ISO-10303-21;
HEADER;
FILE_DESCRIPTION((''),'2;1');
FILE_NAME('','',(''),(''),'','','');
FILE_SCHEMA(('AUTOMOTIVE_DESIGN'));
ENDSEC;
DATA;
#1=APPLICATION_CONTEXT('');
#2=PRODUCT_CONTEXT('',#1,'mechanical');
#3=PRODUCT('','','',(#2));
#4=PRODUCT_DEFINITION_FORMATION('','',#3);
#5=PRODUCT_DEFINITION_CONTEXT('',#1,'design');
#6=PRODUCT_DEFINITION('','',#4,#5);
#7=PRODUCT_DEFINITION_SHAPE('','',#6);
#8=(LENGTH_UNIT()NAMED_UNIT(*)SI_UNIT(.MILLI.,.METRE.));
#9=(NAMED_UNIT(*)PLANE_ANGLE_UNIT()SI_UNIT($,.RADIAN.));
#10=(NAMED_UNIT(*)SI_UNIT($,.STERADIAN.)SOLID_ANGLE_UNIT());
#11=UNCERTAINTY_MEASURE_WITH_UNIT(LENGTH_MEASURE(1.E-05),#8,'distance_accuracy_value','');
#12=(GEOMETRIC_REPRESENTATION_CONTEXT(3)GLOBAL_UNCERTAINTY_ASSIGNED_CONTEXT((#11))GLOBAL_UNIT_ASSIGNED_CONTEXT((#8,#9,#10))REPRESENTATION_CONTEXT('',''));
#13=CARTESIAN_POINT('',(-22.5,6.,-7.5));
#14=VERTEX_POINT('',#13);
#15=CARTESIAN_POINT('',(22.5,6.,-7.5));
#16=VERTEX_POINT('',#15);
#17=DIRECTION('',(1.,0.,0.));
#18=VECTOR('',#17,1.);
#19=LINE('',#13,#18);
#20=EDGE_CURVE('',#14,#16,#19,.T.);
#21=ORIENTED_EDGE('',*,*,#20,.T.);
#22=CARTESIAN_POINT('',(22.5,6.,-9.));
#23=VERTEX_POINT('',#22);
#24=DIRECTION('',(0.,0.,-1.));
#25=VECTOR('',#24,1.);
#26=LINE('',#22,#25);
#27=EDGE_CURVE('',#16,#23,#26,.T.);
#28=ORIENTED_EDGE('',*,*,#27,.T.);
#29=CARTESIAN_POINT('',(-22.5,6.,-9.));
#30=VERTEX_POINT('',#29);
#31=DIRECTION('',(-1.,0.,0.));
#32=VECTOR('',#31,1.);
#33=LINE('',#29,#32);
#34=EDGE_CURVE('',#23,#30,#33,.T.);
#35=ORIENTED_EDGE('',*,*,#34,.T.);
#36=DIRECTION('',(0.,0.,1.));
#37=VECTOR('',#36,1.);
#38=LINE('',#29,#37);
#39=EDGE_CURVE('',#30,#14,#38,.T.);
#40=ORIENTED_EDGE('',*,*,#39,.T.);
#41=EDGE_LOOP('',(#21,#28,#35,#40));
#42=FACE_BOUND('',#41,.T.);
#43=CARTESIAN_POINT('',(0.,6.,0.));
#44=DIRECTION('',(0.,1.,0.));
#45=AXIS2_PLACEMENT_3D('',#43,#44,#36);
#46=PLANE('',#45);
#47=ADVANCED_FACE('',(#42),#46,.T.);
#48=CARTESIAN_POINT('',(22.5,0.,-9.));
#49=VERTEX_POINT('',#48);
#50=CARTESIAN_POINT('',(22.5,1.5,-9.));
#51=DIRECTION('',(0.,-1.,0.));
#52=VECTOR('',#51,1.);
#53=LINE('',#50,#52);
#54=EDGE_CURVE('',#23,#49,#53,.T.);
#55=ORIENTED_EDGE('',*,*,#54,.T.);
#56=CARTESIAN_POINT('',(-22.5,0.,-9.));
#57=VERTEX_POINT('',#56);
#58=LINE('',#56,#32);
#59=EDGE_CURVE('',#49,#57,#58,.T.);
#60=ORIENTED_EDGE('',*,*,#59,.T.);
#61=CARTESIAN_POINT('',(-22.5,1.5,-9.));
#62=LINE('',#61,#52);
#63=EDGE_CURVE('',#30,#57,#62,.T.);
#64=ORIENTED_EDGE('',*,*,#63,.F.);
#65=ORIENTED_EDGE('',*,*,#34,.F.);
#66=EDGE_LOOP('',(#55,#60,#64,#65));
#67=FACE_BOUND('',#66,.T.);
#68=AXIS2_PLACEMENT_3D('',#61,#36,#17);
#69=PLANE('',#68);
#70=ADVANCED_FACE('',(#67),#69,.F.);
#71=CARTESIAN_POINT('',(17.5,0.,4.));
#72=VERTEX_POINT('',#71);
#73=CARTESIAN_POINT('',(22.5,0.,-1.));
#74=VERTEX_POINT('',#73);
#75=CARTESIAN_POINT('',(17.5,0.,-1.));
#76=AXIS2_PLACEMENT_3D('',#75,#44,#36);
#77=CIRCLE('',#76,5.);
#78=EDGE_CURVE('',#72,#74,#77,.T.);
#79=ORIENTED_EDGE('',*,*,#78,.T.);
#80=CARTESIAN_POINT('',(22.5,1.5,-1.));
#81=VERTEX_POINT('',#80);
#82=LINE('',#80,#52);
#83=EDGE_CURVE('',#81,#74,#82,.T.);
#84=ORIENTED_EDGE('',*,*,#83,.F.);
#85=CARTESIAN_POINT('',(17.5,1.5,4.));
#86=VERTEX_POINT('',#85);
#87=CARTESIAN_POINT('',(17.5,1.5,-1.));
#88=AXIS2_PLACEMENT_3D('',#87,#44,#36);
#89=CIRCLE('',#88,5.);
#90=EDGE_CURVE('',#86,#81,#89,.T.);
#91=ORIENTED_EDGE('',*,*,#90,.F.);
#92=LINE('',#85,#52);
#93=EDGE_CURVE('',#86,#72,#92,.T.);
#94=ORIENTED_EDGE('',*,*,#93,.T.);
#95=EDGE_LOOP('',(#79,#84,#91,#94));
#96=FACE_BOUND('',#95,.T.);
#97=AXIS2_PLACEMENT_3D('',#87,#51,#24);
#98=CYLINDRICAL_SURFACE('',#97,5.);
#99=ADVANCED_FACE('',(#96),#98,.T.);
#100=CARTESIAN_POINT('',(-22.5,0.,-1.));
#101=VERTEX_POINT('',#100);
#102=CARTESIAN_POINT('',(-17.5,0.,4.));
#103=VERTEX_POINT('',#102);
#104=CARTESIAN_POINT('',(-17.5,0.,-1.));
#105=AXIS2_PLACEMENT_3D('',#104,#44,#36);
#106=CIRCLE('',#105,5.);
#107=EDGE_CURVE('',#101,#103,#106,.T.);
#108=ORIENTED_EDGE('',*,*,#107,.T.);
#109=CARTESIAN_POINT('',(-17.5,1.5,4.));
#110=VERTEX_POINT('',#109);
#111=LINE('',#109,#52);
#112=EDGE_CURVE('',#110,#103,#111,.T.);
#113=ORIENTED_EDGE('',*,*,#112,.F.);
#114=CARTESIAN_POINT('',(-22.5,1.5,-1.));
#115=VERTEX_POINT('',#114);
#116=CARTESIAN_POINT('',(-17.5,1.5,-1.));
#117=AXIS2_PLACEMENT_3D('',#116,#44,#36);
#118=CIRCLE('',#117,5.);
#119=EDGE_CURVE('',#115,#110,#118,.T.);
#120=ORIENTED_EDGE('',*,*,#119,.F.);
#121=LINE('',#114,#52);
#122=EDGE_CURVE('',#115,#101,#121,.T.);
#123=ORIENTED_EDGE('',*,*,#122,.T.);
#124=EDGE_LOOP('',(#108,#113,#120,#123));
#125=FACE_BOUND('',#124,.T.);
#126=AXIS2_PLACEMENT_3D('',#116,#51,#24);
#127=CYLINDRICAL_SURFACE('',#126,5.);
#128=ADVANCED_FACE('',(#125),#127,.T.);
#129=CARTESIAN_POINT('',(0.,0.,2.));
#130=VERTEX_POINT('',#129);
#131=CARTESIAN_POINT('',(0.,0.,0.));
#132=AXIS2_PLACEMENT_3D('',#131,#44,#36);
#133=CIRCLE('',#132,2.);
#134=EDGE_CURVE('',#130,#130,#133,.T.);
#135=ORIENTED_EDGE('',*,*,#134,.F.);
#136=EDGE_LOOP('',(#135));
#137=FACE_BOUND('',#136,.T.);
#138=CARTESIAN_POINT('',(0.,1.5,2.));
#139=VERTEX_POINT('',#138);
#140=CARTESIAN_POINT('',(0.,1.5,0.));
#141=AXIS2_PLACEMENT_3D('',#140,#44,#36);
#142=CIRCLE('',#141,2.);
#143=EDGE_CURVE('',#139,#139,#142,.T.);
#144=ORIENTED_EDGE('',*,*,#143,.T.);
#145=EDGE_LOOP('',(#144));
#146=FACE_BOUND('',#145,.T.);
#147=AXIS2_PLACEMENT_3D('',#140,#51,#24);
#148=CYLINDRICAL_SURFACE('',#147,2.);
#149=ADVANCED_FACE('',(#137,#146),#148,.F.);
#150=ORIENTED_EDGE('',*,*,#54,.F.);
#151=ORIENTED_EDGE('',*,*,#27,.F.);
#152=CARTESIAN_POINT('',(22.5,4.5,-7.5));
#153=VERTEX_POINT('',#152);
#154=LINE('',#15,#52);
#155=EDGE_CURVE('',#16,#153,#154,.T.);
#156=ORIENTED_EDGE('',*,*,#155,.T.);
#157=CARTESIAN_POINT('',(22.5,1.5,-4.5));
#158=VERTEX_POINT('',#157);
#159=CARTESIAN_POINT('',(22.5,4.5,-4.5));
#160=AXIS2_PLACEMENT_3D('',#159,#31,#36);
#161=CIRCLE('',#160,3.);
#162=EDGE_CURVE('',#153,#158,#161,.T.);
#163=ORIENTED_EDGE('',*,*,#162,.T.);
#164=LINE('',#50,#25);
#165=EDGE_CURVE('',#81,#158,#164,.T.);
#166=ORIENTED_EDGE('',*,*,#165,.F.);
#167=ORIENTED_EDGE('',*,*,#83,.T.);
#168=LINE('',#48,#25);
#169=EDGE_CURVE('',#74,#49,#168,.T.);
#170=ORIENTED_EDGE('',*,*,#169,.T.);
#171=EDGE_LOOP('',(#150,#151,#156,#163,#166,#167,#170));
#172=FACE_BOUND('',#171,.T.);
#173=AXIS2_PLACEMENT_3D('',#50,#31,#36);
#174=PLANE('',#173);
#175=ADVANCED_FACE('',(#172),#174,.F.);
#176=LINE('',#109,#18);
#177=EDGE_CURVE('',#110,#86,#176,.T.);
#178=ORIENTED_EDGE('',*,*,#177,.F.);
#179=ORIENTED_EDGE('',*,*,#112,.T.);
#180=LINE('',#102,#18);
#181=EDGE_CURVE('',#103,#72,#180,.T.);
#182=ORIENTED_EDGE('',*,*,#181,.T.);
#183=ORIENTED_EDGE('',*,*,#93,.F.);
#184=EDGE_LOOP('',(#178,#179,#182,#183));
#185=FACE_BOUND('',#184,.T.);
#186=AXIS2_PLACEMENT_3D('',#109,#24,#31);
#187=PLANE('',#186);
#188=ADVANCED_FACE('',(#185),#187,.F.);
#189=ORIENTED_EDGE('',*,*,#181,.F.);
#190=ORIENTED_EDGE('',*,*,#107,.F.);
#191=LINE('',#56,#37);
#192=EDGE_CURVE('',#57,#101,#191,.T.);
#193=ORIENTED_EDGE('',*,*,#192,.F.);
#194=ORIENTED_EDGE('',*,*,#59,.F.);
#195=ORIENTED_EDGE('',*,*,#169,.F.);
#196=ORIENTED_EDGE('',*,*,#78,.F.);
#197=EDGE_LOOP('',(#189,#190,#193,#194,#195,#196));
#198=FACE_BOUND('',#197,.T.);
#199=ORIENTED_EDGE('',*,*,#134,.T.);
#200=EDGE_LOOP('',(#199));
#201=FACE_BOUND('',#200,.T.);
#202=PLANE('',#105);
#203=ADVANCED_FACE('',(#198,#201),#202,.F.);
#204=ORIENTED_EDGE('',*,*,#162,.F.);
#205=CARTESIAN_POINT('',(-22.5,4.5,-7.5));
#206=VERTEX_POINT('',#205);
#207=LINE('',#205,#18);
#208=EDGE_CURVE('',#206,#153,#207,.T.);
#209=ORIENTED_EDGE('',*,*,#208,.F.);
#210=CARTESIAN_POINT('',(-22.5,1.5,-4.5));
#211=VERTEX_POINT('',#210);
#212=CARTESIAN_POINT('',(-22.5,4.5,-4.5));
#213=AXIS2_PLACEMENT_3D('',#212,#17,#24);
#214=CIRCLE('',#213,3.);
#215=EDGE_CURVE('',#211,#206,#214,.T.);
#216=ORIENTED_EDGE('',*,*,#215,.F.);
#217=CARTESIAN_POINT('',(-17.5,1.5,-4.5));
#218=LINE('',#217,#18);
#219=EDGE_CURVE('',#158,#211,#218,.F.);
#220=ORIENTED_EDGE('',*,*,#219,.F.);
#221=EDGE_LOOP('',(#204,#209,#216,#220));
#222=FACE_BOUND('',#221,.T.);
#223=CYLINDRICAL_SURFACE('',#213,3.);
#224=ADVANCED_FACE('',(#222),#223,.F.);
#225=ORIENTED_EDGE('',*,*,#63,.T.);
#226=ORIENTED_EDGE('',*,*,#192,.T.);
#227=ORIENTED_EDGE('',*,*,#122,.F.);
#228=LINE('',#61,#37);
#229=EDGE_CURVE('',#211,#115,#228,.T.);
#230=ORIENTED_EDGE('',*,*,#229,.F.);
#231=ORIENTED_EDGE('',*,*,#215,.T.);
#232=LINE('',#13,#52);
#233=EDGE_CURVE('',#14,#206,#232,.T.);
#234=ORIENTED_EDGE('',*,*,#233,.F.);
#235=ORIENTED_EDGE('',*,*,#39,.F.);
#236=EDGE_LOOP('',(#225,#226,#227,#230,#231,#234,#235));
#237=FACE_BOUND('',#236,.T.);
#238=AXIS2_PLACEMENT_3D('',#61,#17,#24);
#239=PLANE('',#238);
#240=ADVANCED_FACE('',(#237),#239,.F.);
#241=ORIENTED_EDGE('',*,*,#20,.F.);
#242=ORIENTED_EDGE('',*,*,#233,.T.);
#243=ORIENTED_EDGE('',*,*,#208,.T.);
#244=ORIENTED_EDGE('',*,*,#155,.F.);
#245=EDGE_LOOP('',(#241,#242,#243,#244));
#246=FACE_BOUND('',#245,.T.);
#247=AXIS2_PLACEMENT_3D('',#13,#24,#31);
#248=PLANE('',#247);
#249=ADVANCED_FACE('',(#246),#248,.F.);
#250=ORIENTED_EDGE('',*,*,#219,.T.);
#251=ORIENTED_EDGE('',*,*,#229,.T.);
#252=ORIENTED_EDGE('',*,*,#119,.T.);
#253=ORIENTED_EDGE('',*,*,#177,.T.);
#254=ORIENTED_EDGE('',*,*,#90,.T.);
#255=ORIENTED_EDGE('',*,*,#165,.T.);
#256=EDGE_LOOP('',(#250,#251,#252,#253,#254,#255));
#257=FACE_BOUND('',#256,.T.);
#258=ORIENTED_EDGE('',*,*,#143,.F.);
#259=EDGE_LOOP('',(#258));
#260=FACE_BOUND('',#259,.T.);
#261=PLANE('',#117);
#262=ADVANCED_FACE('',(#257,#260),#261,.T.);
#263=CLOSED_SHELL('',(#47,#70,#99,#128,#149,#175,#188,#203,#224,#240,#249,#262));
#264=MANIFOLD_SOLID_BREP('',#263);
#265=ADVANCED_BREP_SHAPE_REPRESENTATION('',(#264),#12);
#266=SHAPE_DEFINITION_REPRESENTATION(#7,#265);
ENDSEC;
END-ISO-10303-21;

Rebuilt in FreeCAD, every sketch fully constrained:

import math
import FreeCAD as App
import Part
import Sketcher
from FreeCAD import Vector


def edges_at(feature, points):
    """Names of the edges that pass closest to the given points."""
    edges = feature.Shape.Edges
    near = lambda p: min(range(len(edges)), key=lambda i: edges[i].distToShape(Part.Vertex(*p))[0])
    return sorted({f"Edge{near(p) + 1}" for p in points})

doc = App.newDocument("Part")
body = doc.addObject("PartDesign::Body", "Body")

sketch1 = body.newObject("Sketcher::SketchObject", "Sketch")
sketch1.AttachmentSupport = (doc.getObject("XZ_Plane"), [""])
sketch1.MapMode = "FlatFace"
sketch1.addGeometry([
    Part.LineSegment(Vector(22.5, -9, 0), Vector(-22.5, -9, 0)),
    Part.LineSegment(Vector(-22.5, -9, 0), Vector(-22.5, -1, 0)),
    Part.ArcOfCircle(Part.Circle(Vector(-17.5, -1, 0), Vector(0, 0, 1), 5), math.radians(90), math.radians(180)),
    Part.LineSegment(Vector(-17.5, 4, 0), Vector(17.5, 4, 0)),
    Part.ArcOfCircle(Part.Circle(Vector(17.5, -1, 0), Vector(0, 0, 1), 5), math.radians(0), math.radians(90)),
    Part.LineSegment(Vector(22.5, -1, 0), Vector(22.5, -9, 0)),
    Part.Circle(Vector(0, 0, 0), Vector(0, 0, 1), 2),
], False)
sketch1.addConstraint([
    Sketcher.Constraint("Coincident", 0, 2, 1, 1),
    Sketcher.Constraint("Tangent", 1, 2, 2, 2),
    Sketcher.Constraint("Tangent", 2, 1, 3, 1),
    Sketcher.Constraint("Tangent", 3, 2, 4, 2),
    Sketcher.Constraint("Tangent", 4, 1, 5, 1),
    Sketcher.Constraint("Coincident", 5, 2, 0, 1),
    Sketcher.Constraint("Horizontal", 0),
    Sketcher.Constraint("Vertical", 1),
    Sketcher.Constraint("Horizontal", 3),
    Sketcher.Constraint("Vertical", 5),
    Sketcher.Constraint("Coincident", 6, 3, -1, 1),
    Sketcher.Constraint("Equal", 2, 4),
    Sketcher.Constraint("Diameter", 6, 4.0),
    Sketcher.Constraint("Radius", 2, 5.0),
    Sketcher.Constraint("DistanceX", 0, 2, 0, 1, 45.0),
    Sketcher.Constraint("DistanceY", 1, 1, 1, 2, 8.0),
    Sketcher.Constraint("DistanceY", 2, 3, -1, 1, 1.0),
    Sketcher.Constraint("DistanceX", 2, 3, -1, 1, 17.5),
])
pad1 = body.newObject("PartDesign::Pad", "Pad")
pad1.Profile = sketch1
pad1.Length = 1.5
pad1.Reversed = True

sketch2 = body.newObject("Sketcher::SketchObject", "Sketch001")
sketch2.AttachmentSupport = (doc.getObject("XZ_Plane"), [""])
sketch2.MapMode = "FlatFace"
sketch2.AttachmentOffset = App.Placement(Vector(0, 0, -1.5), App.Rotation())
sketch2.addGeometry([
    Part.LineSegment(Vector(-22.5, -9, 0), Vector(-22.5, -7.5, 0)),
    Part.LineSegment(Vector(-22.5, -7.5, 0), Vector(22.5, -7.5, 0)),
    Part.LineSegment(Vector(22.5, -7.5, 0), Vector(22.5, -9, 0)),
    Part.LineSegment(Vector(22.5, -9, 0), Vector(-22.5, -9, 0)),
], False)
sketch2.addConstraint([
    Sketcher.Constraint("Coincident", 0, 2, 1, 1),
    Sketcher.Constraint("Coincident", 1, 2, 2, 1),
    Sketcher.Constraint("Coincident", 2, 2, 3, 1),
    Sketcher.Constraint("Coincident", 3, 2, 0, 1),
    Sketcher.Constraint("Vertical", 0),
    Sketcher.Constraint("Horizontal", 1),
    Sketcher.Constraint("Vertical", 2),
    Sketcher.Constraint("Horizontal", 3),
    Sketcher.Constraint("DistanceX", 1, 1, 1, 2, 45.0),
    Sketcher.Constraint("DistanceY", 0, 1, 0, 2, 1.5),
    Sketcher.Constraint("DistanceY", 2, 2, -1, 1, 9.0),
    Sketcher.Constraint("DistanceX", 0, 2, -1, 1, 22.5),
])
pad2 = body.newObject("PartDesign::Pad", "Pad001")
pad2.Profile = sketch2
pad2.Length = 4.5
pad2.Reversed = True
doc.recompute()

fillet = body.newObject("PartDesign::Fillet", "Fillet")
fillet.Base = (pad2, edges_at(pad2, [(0, 1.5, -7.5)]))
fillet.Radius = 3

doc.recompute()
